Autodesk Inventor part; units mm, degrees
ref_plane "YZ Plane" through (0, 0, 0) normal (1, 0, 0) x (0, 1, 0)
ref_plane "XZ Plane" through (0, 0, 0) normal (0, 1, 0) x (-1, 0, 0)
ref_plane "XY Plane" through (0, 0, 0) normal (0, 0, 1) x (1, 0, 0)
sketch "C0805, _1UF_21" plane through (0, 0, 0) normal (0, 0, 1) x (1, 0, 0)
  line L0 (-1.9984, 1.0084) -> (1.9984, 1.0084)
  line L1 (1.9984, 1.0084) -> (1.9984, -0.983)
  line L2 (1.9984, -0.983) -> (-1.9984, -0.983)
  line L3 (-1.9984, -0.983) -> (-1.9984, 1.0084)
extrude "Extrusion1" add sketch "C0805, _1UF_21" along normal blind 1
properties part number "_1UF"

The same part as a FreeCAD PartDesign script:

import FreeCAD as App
import Part
import Sketcher

V = App.Vector
Q = App.Units.Quantity

doc = App.newDocument("Part")
params = doc.addObject("Spreadsheet::Sheet", "Params")
for row, (alias, value) in enumerate([
    ("pad1_length", "1 mm"),
], start=1):
    params.set(f"A{row}", alias)
    params.set(f"B{row}", "=" + value)
    params.setAlias(f"B{row}", alias)

body = doc.addObject("PartDesign::Body", "Body")

# Sketch on XY plane
sketch1 = body.newObject("Sketcher::SketchObject", "Sketch")
sketch1.AttachmentSupport = (doc.getObject("XY_Plane"), [""])
sketch1.MapMode = "FlatFace"
sketch1.addGeometry([
    Part.LineSegment(V(2, 1, 0), V(-2, 1, 0)),
    Part.LineSegment(V(-2, 1, 0), V(-2, -1, 0)),
    Part.LineSegment(V(-2, -1, 0), V(2, -1, 0)),
    Part.LineSegment(V(2, -1, 0), V(2, 1, 0)),
], False)
sketch1.addConstraint([
    Sketcher.Constraint("Coincident", 0, 2, 1, 1),
    Sketcher.Constraint("Coincident", 1, 2, 2, 1),
    Sketcher.Constraint("Coincident", 2, 2, 3, 1),
    Sketcher.Constraint("Coincident", 3, 2, 0, 1),
    Sketcher.Constraint("Horizontal", 0),
    Sketcher.Constraint("Vertical", 1),
    Sketcher.Constraint("Horizontal", 2),
    Sketcher.Constraint("Vertical", 3),
    Sketcher.Constraint("DistanceX", 0, 2, 0, 1, Q("3.9968 mm")),
    Sketcher.Constraint("DistanceY", 1, 2, 1, 1, Q("1.9914 mm")),
    Sketcher.Constraint("DistanceY", 1, 2, -1, 1, Q("0.983 mm")),
    Sketcher.Constraint("DistanceX", 0, 2, -1, 1, Q("1.9984 mm")),
])
pad1 = body.newObject("PartDesign::Pad", "Pad")
pad1.Profile = sketch1
pad1.setExpression("Length", "Params.pad1_length")

doc.recompute()
